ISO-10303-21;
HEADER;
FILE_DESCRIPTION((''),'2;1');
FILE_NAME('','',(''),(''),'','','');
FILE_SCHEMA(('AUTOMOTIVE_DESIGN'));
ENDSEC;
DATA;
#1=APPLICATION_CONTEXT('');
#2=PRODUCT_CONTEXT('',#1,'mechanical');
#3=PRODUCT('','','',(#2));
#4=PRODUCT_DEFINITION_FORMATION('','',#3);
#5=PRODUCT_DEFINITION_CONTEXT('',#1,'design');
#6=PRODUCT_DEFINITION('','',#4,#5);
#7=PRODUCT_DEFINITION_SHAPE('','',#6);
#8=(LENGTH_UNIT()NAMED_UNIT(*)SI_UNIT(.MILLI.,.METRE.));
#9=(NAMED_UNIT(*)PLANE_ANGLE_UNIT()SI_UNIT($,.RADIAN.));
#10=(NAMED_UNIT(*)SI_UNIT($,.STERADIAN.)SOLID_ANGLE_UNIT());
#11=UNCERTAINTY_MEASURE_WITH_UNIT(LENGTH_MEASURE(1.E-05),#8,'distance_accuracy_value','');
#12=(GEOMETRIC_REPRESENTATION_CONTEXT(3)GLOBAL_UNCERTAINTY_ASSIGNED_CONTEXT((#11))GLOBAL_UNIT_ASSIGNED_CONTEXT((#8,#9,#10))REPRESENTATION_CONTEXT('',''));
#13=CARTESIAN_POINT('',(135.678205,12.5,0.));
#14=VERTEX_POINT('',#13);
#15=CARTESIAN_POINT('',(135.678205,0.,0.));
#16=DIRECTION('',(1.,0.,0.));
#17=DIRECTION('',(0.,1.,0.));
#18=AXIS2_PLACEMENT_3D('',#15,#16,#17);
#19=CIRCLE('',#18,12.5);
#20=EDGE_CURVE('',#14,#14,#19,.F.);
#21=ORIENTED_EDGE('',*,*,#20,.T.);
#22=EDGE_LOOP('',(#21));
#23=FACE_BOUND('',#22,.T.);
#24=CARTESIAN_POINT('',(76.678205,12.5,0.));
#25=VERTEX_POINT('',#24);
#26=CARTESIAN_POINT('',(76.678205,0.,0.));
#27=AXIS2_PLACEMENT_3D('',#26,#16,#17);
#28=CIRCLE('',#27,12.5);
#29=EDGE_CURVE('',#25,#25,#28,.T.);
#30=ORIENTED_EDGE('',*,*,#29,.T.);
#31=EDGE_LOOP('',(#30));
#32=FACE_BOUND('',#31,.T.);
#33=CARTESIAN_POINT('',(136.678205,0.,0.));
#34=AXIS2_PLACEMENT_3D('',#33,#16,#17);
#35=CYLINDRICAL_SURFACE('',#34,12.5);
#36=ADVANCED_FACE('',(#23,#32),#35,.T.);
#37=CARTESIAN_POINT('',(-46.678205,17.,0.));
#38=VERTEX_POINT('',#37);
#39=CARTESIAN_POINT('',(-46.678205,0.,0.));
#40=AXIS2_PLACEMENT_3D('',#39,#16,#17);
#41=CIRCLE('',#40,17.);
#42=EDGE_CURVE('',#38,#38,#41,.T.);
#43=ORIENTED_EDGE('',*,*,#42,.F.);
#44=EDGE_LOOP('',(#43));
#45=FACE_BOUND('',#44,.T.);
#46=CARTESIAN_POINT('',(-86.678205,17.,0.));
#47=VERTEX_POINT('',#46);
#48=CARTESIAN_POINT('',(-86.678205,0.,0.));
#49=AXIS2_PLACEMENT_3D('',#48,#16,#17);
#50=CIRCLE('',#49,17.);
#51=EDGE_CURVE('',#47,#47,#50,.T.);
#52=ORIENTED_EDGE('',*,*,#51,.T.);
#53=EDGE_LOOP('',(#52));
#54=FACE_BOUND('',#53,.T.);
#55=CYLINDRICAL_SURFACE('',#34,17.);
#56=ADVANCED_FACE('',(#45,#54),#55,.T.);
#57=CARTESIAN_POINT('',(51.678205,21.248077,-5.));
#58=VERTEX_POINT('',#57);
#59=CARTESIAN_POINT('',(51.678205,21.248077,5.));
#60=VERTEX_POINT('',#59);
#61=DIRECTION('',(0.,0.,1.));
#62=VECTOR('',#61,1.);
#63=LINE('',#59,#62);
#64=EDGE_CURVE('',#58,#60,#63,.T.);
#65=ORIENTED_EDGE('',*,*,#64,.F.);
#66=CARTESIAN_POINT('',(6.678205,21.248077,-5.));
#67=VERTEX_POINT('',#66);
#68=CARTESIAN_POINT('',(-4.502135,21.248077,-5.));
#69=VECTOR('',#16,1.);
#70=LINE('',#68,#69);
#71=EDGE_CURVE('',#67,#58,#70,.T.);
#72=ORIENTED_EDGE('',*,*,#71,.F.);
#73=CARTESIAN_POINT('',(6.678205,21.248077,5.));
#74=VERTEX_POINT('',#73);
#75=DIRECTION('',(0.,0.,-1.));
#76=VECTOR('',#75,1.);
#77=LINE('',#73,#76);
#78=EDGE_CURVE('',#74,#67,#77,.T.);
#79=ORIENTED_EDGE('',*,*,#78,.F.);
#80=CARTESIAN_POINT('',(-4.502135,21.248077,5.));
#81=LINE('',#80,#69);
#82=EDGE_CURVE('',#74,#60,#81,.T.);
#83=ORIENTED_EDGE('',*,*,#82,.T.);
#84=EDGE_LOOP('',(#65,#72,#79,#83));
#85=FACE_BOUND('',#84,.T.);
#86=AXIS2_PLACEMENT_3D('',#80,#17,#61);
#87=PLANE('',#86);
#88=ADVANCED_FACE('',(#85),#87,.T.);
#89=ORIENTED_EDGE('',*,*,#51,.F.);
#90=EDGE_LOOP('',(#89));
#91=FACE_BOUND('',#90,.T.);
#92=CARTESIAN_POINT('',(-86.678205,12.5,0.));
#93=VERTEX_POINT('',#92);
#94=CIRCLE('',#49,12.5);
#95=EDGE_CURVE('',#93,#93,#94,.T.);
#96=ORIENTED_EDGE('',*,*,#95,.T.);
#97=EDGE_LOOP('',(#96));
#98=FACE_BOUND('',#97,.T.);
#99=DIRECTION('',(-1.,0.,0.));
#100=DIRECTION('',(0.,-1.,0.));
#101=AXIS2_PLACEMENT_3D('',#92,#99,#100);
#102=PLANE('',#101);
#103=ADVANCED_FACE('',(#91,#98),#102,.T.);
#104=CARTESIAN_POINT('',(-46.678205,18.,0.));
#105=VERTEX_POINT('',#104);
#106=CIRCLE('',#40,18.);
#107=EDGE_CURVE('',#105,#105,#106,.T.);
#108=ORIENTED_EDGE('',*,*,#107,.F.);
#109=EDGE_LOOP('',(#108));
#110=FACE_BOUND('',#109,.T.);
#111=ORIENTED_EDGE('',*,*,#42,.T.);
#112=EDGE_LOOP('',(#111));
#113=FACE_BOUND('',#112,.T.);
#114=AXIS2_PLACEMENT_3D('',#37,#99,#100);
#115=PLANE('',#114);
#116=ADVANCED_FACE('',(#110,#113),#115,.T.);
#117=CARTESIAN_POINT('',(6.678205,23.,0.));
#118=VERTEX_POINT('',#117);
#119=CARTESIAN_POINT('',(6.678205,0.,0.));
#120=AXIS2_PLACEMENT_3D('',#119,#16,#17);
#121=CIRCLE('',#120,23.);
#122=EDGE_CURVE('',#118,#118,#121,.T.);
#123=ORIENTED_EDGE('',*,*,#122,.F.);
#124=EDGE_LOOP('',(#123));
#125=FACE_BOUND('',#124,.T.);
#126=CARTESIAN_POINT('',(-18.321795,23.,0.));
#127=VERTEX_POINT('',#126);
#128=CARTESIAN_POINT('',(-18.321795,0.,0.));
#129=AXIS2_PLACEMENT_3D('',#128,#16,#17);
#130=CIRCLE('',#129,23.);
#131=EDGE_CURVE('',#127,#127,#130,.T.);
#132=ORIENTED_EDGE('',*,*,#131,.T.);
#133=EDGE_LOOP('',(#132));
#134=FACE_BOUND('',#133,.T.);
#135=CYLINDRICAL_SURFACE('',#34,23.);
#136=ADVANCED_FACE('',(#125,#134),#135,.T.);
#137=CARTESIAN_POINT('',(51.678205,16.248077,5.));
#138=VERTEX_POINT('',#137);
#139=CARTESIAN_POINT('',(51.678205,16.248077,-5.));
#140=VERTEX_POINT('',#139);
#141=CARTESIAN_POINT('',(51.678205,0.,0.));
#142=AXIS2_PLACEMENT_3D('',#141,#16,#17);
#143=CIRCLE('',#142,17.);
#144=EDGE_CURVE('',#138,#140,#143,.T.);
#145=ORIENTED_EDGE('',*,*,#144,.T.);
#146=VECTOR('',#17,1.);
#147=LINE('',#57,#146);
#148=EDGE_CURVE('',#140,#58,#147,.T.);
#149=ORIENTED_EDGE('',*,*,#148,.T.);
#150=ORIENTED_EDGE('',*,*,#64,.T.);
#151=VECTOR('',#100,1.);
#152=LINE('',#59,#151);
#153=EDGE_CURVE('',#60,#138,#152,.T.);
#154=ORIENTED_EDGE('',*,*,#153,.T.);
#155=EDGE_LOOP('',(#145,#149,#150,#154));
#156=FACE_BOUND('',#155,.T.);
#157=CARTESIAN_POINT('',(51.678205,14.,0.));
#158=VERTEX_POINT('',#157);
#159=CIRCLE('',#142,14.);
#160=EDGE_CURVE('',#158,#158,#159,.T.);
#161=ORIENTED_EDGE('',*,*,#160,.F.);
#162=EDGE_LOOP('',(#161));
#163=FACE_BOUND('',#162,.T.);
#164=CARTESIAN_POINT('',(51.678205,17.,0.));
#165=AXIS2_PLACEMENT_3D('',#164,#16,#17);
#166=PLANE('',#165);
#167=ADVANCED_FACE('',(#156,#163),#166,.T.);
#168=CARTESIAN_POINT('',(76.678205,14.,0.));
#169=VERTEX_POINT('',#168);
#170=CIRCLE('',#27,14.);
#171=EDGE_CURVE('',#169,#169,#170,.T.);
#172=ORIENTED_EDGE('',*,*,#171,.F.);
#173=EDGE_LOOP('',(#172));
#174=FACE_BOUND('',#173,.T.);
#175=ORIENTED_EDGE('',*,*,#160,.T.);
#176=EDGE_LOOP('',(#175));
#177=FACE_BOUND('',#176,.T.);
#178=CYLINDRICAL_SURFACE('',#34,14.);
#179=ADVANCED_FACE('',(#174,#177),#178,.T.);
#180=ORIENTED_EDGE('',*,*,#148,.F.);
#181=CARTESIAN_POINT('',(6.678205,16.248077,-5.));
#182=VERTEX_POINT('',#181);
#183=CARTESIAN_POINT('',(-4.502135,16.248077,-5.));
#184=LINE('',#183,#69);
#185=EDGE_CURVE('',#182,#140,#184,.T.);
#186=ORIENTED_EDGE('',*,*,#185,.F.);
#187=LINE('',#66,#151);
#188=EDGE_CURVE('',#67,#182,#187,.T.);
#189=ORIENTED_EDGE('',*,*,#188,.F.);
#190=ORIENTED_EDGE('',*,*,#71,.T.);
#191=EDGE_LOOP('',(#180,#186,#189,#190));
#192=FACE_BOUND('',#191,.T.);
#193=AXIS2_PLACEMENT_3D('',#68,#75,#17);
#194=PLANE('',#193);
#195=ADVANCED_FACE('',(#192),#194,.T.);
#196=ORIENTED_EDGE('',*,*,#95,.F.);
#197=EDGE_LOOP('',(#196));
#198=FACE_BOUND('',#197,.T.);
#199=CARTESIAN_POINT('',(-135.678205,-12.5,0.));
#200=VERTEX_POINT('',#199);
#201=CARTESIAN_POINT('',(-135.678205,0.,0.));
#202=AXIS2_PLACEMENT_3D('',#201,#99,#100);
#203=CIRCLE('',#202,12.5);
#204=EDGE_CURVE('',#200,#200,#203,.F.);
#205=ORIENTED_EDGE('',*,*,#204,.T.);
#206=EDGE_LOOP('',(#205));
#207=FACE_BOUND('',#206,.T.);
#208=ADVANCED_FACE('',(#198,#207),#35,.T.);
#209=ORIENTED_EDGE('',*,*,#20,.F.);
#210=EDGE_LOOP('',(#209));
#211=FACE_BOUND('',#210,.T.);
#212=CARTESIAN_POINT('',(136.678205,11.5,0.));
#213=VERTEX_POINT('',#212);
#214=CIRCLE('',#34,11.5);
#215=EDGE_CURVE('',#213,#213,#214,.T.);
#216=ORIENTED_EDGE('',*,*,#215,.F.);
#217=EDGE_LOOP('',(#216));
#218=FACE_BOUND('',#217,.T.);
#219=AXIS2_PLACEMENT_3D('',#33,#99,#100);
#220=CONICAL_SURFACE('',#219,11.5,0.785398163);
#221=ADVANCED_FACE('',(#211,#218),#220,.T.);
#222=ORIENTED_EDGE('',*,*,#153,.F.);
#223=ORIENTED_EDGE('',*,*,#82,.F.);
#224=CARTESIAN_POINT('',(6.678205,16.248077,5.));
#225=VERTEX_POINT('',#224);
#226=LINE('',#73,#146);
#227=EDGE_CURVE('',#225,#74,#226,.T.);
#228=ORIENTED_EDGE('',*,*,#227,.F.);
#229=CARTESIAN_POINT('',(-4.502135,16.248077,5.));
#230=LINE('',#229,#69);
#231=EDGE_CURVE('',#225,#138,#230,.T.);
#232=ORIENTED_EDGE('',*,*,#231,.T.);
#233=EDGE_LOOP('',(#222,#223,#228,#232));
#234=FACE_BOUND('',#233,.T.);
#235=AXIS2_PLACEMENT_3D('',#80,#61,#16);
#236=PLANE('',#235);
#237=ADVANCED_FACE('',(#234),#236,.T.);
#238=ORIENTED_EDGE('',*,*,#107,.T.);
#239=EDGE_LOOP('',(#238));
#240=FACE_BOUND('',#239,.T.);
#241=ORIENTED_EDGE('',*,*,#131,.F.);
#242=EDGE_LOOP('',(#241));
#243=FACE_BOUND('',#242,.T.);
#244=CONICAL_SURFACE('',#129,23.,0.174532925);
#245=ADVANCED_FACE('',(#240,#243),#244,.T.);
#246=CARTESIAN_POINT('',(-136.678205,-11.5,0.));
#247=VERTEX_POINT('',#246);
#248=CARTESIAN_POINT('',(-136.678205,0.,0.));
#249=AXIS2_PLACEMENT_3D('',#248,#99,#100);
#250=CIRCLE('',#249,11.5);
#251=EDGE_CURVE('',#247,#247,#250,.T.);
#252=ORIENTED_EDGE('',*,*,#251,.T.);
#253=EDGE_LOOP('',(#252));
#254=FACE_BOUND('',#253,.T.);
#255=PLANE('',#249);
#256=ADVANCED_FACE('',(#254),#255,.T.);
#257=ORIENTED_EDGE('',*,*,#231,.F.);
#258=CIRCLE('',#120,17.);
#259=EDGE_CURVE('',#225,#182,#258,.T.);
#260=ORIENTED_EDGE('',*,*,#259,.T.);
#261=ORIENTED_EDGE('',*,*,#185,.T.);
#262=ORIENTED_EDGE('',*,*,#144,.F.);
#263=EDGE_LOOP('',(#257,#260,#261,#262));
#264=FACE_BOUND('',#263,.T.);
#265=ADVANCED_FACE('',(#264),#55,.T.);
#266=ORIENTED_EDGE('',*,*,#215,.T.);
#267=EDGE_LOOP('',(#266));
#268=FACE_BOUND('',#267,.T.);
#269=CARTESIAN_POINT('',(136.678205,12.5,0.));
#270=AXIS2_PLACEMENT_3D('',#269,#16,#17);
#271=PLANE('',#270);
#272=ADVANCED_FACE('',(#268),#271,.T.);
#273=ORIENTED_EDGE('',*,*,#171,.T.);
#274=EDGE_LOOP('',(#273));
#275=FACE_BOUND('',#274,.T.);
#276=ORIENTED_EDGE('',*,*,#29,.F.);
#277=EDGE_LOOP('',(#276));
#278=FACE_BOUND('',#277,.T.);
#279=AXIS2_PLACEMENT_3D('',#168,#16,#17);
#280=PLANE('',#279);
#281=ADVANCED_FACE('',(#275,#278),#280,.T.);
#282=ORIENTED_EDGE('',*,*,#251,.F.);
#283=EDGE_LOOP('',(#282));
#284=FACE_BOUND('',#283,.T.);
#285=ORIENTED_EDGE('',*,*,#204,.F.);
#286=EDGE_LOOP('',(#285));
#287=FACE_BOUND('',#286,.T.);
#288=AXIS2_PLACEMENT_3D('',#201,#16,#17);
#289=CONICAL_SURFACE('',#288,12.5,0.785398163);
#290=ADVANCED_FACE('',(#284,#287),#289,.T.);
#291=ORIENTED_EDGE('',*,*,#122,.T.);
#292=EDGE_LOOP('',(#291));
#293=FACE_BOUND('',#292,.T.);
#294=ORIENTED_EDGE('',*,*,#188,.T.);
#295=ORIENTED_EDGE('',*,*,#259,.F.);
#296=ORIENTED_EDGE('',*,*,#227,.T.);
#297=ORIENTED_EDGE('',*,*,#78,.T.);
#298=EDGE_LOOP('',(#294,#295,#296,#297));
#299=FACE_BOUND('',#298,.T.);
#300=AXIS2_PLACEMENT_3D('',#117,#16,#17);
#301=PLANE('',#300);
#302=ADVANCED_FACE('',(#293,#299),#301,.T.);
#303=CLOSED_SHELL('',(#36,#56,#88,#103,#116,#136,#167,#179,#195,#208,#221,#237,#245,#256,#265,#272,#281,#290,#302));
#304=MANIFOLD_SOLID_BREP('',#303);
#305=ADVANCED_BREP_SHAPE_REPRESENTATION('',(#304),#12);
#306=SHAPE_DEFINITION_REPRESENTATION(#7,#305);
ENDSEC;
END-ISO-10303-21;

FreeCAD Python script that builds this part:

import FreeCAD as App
import Part
import Sketcher

V = App.Vector
Q = App.Units.Quantity


def edges_at(feature, points):
    """Names of the edges that pass closest to the given points."""
    edges = feature.Shape.Edges
    near = lambda p: min(range(len(edges)), key=lambda i: edges[i].distToShape(Part.Vertex(*p))[0])
    return sorted({f"Edge{near(p) + 1}" for p in points})


def add_polygon(sketch, points):
    """Adds a closed chain of lines whose ends are joined by coincident constraints."""
    first, n = sketch.GeometryCount, len(points)
    for a, b in zip(points, points[1:] + points[:1]):
        sketch.addGeometry(Part.LineSegment(App.Vector(*a, 0), App.Vector(*b, 0)), False)
    for i in range(n):
        sketch.addConstraint(Sketcher.Constraint("Coincident", first + i, 2, first + (i + 1) % n, 1))

doc = App.newDocument("Part")
body = doc.addObject("PartDesign::Body", "Body")

# Sketch on XY plane
sketch1 = body.newObject("Sketcher::SketchObject", "Sketch")
sketch1.AttachmentSupport = (doc.getObject("XY_Plane"), [""])
sketch1.MapMode = "FlatFace"
add_polygon(sketch1, [(-86.678205, 12.5), (-136.678205, 12.5), (-136.678205, 0), (136.678205, 0), (136.678205, 12.5), (76.678205, 12.5), (76.678205, 14), (51.678205, 14), (51.678205, 17), (6.678205, 17), (6.678205, 23), (-18.321795, 23), (-46.678205, 18), (-46.678205, 17), (-86.678205, 17)])  # lines 0-14
sketch1.addConstraint(Sketcher.Constraint("Horizontal", 0))
sketch1.addConstraint(Sketcher.Constraint("Vertical", 1))
sketch1.addConstraint(Sketcher.Constraint("Horizontal", 2))
sketch1.addConstraint(Sketcher.Constraint("Vertical", 3))
sketch1.addConstraint(Sketcher.Constraint("Horizontal", 4))
sketch1.addConstraint(Sketcher.Constraint("Vertical", 5))
sketch1.addConstraint(Sketcher.Constraint("Horizontal", 6))
sketch1.addConstraint(Sketcher.Constraint("Vertical", 7))
sketch1.addConstraint(Sketcher.Constraint("Horizontal", 8))
sketch1.addConstraint(Sketcher.Constraint("Vertical", 9))
sketch1.addConstraint(Sketcher.Constraint("Horizontal", 10))
sketch1.addConstraint(Sketcher.Constraint("Vertical", 12))
sketch1.addConstraint(Sketcher.Constraint("Horizontal", 13))
sketch1.addConstraint(Sketcher.Constraint("Vertical", 14))
sketch1.addConstraint(Sketcher.Constraint("Symmetric", 1, 2, 2, 2, -1, 1))
sketch1.addConstraint(Sketcher.Constraint("Horizontal", 0, 2, 3, 2))
sketch1.addConstraint(Sketcher.Constraint("Horizontal", 8, 2, 12, 2))
sketch1.addConstraint(Sketcher.Constraint("Equal", 6, 10))
sketch1.addConstraint(Sketcher.Constraint("DistanceX", 0, 2, 0, 1, Q("50 mm")))
sketch1.addConstraint(Sketcher.Constraint("DistanceX", 4, 2, 4, 1, Q("60 mm")))
sketch1.addConstraint(Sketcher.Constraint("DistanceX", 6, 2, 6, 1, Q("25 mm")))
sketch1.addConstraint(Sketcher.Constraint("DistanceX", 8, 2, 8, 1, Q("45 mm")))
sketch1.addConstraint(Sketcher.Constraint("DistanceX", 13, 2, 13, 1, Q("40 mm")))
sketch1.addConstraint(Sketcher.Constraint("DistanceY", 7, 1, 7, 2, Q("3 mm")))
sketch1.addConstraint(Sketcher.Constraint("DistanceY", 9, 1, 9, 2, Q("6 mm")))
sketch1.addConstraint(Sketcher.Constraint("DistanceY", 12, 2, 12, 1, Q("1 mm")))
sketch1.addConstraint(Sketcher.Constraint("Angle", 11, Q("-170 deg")))
sketch1.addConstraint(Sketcher.Constraint("DistanceY", 1, 2, 1, 1, Q("12.5 mm")))
sketch1.addConstraint(Sketcher.Constraint("DistanceY", 5, 1, 5, 2, Q("1.5 mm")))
revolution = body.newObject("PartDesign::Revolution", "Revolution")
revolution.Profile = sketch1
revolution.ReferenceAxis = (sketch1, ["H_Axis"])
revolution.Angle = 360

# Sketch on YZ plane
sketch2 = body.newObject("Sketcher::SketchObject", "Sketch001")
sketch2.AttachmentSupport = (doc.getObject("YZ_Plane"), [""])
sketch2.MapMode = "FlatFace"
sketch2.AttachmentOffset = App.Placement(V(0, 0, 51.678205), App.Rotation())
add_polygon(sketch2, [(21.248077, 5), (16.248077, 5), (16.248077, -5), (21.248077, -5)])  # lines 0-3
sketch2.addConstraint(Sketcher.Constraint("Horizontal", 0))
sketch2.addConstraint(Sketcher.Constraint("Vertical", 1))
sketch2.addConstraint(Sketcher.Constraint("Horizontal", 2))
sketch2.addConstraint(Sketcher.Constraint("Vertical", 3))
sketch2.addConstraint(Sketcher.Constraint("DistanceX", 0, 2, 0, 1, Q("5 mm")))
sketch2.addConstraint(Sketcher.Constraint("DistanceY", 1, 2, 1, 1, Q("10 mm")))
sketch2.addConstraint(Sketcher.Constraint("DistanceY", -1, 1, 0, 2, Q("5 mm")))
sketch2.addConstraint(Sketcher.Constraint("DistanceX", -1, 1, 0, 2, Q("16.248077 mm")))
pad1 = body.newObject("PartDesign::Pad", "Pad")
pad1.Profile = sketch2
pad1.Length = 45
pad1.Reversed = True
doc.recompute()

chamfer = body.newObject("PartDesign::Chamfer", "Chamfer")
chamfer.Base = (pad1, edges_at(pad1, [(136.678, -12.5, 0), (-136.678, -12.5, 0)]))
chamfer.Size = 1

doc.recompute()
